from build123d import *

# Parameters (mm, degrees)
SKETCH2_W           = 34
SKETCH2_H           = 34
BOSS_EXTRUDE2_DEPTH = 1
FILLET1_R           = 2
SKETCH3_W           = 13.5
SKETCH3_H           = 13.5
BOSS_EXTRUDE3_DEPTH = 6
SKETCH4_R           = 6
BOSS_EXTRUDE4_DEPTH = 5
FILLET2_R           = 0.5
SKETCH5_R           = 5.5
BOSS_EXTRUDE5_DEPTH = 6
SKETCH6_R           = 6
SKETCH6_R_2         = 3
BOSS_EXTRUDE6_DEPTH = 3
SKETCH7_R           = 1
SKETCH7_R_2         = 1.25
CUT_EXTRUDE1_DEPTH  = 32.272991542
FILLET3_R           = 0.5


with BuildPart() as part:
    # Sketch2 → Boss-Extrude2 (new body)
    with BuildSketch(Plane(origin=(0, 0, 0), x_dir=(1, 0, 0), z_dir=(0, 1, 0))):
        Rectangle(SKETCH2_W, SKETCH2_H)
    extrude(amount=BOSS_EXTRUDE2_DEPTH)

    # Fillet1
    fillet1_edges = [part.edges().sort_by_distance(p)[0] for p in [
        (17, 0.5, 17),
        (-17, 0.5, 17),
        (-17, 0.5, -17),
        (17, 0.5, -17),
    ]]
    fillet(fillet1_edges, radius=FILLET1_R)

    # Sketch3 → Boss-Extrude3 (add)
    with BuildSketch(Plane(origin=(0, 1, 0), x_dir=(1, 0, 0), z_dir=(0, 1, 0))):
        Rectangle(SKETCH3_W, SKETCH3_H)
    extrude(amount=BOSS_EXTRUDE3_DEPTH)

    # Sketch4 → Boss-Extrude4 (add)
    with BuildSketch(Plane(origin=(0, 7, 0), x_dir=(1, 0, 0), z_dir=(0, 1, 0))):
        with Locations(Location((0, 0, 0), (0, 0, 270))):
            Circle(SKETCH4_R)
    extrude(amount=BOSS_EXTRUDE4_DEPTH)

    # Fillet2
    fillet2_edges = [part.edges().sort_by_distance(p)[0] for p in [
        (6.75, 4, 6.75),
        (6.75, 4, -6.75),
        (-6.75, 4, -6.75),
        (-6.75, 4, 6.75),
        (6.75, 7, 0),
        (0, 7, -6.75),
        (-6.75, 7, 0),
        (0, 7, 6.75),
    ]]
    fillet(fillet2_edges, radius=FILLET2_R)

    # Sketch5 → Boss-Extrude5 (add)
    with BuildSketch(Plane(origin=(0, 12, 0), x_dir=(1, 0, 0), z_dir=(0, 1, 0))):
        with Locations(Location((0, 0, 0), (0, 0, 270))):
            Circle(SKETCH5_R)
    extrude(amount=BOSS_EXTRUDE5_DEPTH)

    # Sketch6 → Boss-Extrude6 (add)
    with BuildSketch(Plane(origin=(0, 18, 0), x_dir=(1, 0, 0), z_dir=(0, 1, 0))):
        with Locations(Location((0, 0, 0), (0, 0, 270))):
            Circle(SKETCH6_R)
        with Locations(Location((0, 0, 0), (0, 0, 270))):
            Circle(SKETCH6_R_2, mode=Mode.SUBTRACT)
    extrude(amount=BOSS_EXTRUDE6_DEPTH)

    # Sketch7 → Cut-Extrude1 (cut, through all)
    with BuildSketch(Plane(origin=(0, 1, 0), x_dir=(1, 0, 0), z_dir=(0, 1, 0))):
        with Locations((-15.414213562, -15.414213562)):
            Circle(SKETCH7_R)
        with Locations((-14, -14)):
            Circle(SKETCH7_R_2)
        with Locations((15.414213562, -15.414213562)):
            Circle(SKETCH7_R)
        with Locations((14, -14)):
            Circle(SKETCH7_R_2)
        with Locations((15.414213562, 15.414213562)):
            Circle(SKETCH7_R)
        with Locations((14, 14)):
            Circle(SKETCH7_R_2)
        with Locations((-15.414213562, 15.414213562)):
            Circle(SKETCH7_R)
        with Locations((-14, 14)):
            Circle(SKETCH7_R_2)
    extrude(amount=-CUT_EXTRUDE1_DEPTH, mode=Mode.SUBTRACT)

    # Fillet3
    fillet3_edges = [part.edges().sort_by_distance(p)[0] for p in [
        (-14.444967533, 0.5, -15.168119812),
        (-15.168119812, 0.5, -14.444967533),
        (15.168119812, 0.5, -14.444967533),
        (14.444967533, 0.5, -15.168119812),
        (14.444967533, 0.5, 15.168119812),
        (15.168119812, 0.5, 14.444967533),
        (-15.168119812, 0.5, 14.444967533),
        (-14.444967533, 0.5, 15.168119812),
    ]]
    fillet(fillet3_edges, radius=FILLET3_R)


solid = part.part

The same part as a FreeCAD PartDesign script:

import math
import FreeCAD as App
import Part
import Sketcher

V = App.Vector
Q = App.Units.Quantity


def edges_at(feature, points):
    """Names of the edges that pass closest to the given points."""
    edges = feature.Shape.Edges
    near = lambda p: min(range(len(edges)), key=lambda i: edges[i].distToShape(Part.Vertex(*p))[0])
    return sorted({f"Edge{near(p) + 1}" for p in points})


def add_polygon(sketch, points):
    """Adds a closed chain of lines whose ends are joined by coincident constraints."""
    first, n = sketch.GeometryCount, len(points)
    for a, b in zip(points, points[1:] + points[:1]):
        sketch.addGeometry(Part.LineSegment(App.Vector(*a, 0), App.Vector(*b, 0)), False)
    for i in range(n):
        sketch.addConstraint(Sketcher.Constraint("Coincident", first + i, 2, first + (i + 1) % n, 1))

doc = App.newDocument("Part")
body = doc.addObject("PartDesign::Body", "Body")

sketch1 = body.newObject("Sketcher::SketchObject", "Sketch")
sketch1.AttachmentSupport = (doc.getObject("XZ_Plane"), [""])
sketch1.MapMode = "FlatFace"
add_polygon(sketch1, [(-17, -17), (-17, 17), (17, 17), (17, -17)])
sketch1.addConstraint([
    Sketcher.Constraint("Vertical", 0),
    Sketcher.Constraint("Horizontal", 1),
    Sketcher.Constraint("Vertical", 2),
    Sketcher.Constraint("Horizontal", 3),
    Sketcher.Constraint("Symmetric", 0, 2, 2, 2, -1, 1),
    Sketcher.Constraint("Equal", 3, 0),
    Sketcher.Constraint("DistanceX", 1, 1, 1, 2, Q("34 mm")),
])
pad1 = body.newObject("PartDesign::Pad", "Pad")
pad1.Profile = sketch1
pad1.Length = 1
pad1.Reversed = True
doc.recompute()

fillet = body.newObject("PartDesign::Fillet", "Fillet")
fillet.Base = (pad1, edges_at(pad1, [
    (17, 0.5, 17),
    (-17, 0.5, 17),
    (-17, 0.5, -17),
    (17, 0.5, -17),
]))
fillet.Radius = 2

sketch2 = body.newObject("Sketcher::SketchObject", "Sketch001")
sketch2.AttachmentSupport = (doc.getObject("XZ_Plane"), [""])
sketch2.MapMode = "FlatFace"
sketch2.AttachmentOffset = App.Placement(V(0, 0, -1), App.Rotation())
add_polygon(sketch2, [(-7, -7), (-7, 7), (7, 7), (7, -7)])
sketch2.addConstraint([
    Sketcher.Constraint("Vertical", 0),
    Sketcher.Constraint("Horizontal", 1),
    Sketcher.Constraint("Vertical", 2),
    Sketcher.Constraint("Horizontal", 3),
    Sketcher.Constraint("Symmetric", 0, 2, 2, 2, -1, 1),
    Sketcher.Constraint("Equal", 3, 0),
    Sketcher.Constraint("DistanceX", 1, 1, 1, 2, Q("13.5 mm")),
])
pad2 = body.newObject("PartDesign::Pad", "Pad001")
pad2.Profile = sketch2
pad2.Length = 6
pad2.Reversed = True

sketch3 = body.newObject("Sketcher::SketchObject", "Sketch002")
sketch3.AttachmentSupport = (doc.getObject("XZ_Plane"), [""])
sketch3.MapMode = "FlatFace"
sketch3.AttachmentOffset = App.Placement(V(0, 0, -7), App.Rotation())
sketch3.addGeometry(Part.Circle(V(0, 0, 0), V(0, 0, 1), 6), False)
sketch3.addConstraint([
    Sketcher.Constraint("Coincident", 0, 3, -1, 1),
    Sketcher.Constraint("Diameter", 0, Q("12 mm")),
])
pad3 = body.newObject("PartDesign::Pad", "Pad002")
pad3.Profile = sketch3
pad3.Length = 5
pad3.Reversed = True
doc.recompute()

fillet2 = body.newObject("PartDesign::Fillet", "Fillet001")
fillet2.Base = (pad3, edges_at(pad3, [
    (6.75, 4, 6.75),
    (6.75, 4, -6.75),
    (-6.75, 4, -6.75),
    (-6.75, 4, 6.75),
    (6.75, 7, 0),
    (0, 7, -6.75),
    (-6.75, 7, 0),
    (0, 7, 6.75),
]))
fillet2.Radius = 0.5

sketch4 = body.newObject("Sketcher::SketchObject", "Sketch003")
sketch4.AttachmentSupport = (doc.getObject("XZ_Plane"), [""])
sketch4.MapMode = "FlatFace"
sketch4.AttachmentOffset = App.Placement(V(0, 0, -12), App.Rotation())
sketch4.addGeometry(Part.Circle(V(0, 0, 0), V(0, 0, 1), 6), False)
sketch4.addConstraint([
    Sketcher.Constraint("Coincident", 0, 3, -1, 1),
    Sketcher.Constraint("Diameter", 0, Q("11 mm")),
])
pad4 = body.newObject("PartDesign::Pad", "Pad003")
pad4.Profile = sketch4
pad4.Length = 6
pad4.Reversed = True

sketch5 = body.newObject("Sketcher::SketchObject", "Sketch004")
sketch5.AttachmentSupport = (doc.getObject("XZ_Plane"), [""])
sketch5.MapMode = "FlatFace"
sketch5.AttachmentOffset = App.Placement(V(0, 0, -18), App.Rotation())
sketch5.addGeometry([
    Part.Circle(V(0, 0, 0), V(0, 0, 1), 6),
    Part.Circle(V(0, 0, 0), V(0, 0, 1), 3),
], False)
sketch5.addConstraint([
    Sketcher.Constraint("Coincident", 0, 3, -1, 1),
    Sketcher.Constraint("Coincident", 1, 3, -1, 1),
    Sketcher.Constraint("Diameter", 0, Q("12 mm")),
    Sketcher.Constraint("Diameter", 1, Q("6 mm")),
])
pad5 = body.newObject("PartDesign::Pad", "Pad004")
pad5.Profile = sketch5
pad5.Length = 3
pad5.Reversed = True

sketch6 = body.newObject("Sketcher::SketchObject", "Sketch005")
sketch6.AttachmentSupport = (doc.getObject("XZ_Plane"), [""])
sketch6.MapMode = "FlatFace"
sketch6.AttachmentOffset = App.Placement(V(0, 0, -1), App.Rotation())
sketch6.addGeometry([
    Part.ArcOfCircle(Part.Circle(V(-14, 14, 0), V(0, 0, 1), 1.2), math.radians(159), math.radians(471)),
    Part.ArcOfCircle(Part.Circle(V(-15.4, 15.4, 0), V(0, 0, 1), 1), math.radians(-14), math.radians(284)),
    Part.ArcOfCircle(Part.Circle(V(14, 14, 0), V(0, 0, 1), 1.2), math.radians(69), math.radians(381)),
    Part.ArcOfCircle(Part.Circle(V(15.4, 15.4, 0), V(0, 0, 1), 1), math.radians(-104), math.radians(194)),
    Part.ArcOfCircle(Part.Circle(V(14, -14, 0), V(0, 0, 1), 1.2), math.radians(-21), math.radians(291)),
    Part.ArcOfCircle(Part.Circle(V(15.4, -15.4, 0), V(0, 0, 1), 1), math.radians(166), math.radians(464)),
    Part.ArcOfCircle(Part.Circle(V(-14, -14, 0), V(0, 0, 1), 1.2), math.radians(-111), math.radians(201)),
    Part.ArcOfCircle(Part.Circle(V(-15.4, -15.4, 0), V(0, 0, 1), 1), math.radians(76), math.radians(374)),
], False)
sketch6.addConstraint([
    Sketcher.Constraint("Coincident", 0, 1, 1, 2),
    Sketcher.Constraint("Coincident", 1, 1, 0, 2),
    Sketcher.Constraint("Coincident", 2, 1, 3, 2),
    Sketcher.Constraint("Coincident", 3, 1, 2, 2),
    Sketcher.Constraint("Coincident", 4, 1, 5, 2),
    Sketcher.Constraint("Coincident", 5, 1, 4, 2),
    Sketcher.Constraint("Coincident", 6, 1, 7, 2),
    Sketcher.Constraint("Coincident", 7, 1, 6, 2),
    Sketcher.Constraint("Equal", 0, 2),
    Sketcher.Constraint("Equal", 1, 3),
    Sketcher.Constraint("Equal", 2, 4),
    Sketcher.Constraint("Equal", 3, 5),
    Sketcher.Constraint("Equal", 4, 6),
    Sketcher.Constraint("Equal", 5, 7),
    Sketcher.Constraint("Symmetric", 0, 3, 4, 3, -1, 1),
    Sketcher.Constraint("Symmetric", 1, 3, 5, 3, -1, 1),
    Sketcher.Constraint("Symmetric", 2, 3, 6, 3, -1, 1),
    Sketcher.Constraint("Symmetric", 3, 3, 7, 3, -1, 1),
    Sketcher.Constraint("Symmetric", 0, 3, 2, 3, -2),
    Sketcher.Constraint("Symmetric", 1, 3, 3, 3, -2),
    Sketcher.Constraint("Radius", 1, Q("1 mm")),
    Sketcher.Constraint("Radius", 0, Q("1.25 mm")),
    Sketcher.Constraint("DistanceX", 0, 3, -1, 1, Q("14 mm")),
    Sketcher.Constraint("DistanceY", -1, 1, 0, 3, Q("14 mm")),
    Sketcher.Constraint("DistanceX", 0, 1, -1, 1, Q("15.16812 mm")),
    Sketcher.Constraint("DistanceY", -1, 1, 1, 1, Q("15.16812 mm")),
])
pocket1 = body.newObject("PartDesign::Pocket", "Pocket")
pocket1.Profile = sketch6
pocket1.Type = "ThroughAll"
pocket1.Reversed = True
doc.recompute()

fillet3 = body.newObject("PartDesign::Fillet", "Fillet002")
fillet3.Base = (pocket1, edges_at(pocket1, [
    (-14.445, 0.5, -15.168),
    (-15.168, 0.5, -14.445),
    (15.168, 0.5, -14.445),
    (14.445, 0.5, -15.168),
    (14.445, 0.5, 15.168),
    (15.168, 0.5, 14.445),
    (-15.168, 0.5, 14.445),
    (-14.445, 0.5, 15.168),
]))
fillet3.Radius = 0.5

doc.recompute()
